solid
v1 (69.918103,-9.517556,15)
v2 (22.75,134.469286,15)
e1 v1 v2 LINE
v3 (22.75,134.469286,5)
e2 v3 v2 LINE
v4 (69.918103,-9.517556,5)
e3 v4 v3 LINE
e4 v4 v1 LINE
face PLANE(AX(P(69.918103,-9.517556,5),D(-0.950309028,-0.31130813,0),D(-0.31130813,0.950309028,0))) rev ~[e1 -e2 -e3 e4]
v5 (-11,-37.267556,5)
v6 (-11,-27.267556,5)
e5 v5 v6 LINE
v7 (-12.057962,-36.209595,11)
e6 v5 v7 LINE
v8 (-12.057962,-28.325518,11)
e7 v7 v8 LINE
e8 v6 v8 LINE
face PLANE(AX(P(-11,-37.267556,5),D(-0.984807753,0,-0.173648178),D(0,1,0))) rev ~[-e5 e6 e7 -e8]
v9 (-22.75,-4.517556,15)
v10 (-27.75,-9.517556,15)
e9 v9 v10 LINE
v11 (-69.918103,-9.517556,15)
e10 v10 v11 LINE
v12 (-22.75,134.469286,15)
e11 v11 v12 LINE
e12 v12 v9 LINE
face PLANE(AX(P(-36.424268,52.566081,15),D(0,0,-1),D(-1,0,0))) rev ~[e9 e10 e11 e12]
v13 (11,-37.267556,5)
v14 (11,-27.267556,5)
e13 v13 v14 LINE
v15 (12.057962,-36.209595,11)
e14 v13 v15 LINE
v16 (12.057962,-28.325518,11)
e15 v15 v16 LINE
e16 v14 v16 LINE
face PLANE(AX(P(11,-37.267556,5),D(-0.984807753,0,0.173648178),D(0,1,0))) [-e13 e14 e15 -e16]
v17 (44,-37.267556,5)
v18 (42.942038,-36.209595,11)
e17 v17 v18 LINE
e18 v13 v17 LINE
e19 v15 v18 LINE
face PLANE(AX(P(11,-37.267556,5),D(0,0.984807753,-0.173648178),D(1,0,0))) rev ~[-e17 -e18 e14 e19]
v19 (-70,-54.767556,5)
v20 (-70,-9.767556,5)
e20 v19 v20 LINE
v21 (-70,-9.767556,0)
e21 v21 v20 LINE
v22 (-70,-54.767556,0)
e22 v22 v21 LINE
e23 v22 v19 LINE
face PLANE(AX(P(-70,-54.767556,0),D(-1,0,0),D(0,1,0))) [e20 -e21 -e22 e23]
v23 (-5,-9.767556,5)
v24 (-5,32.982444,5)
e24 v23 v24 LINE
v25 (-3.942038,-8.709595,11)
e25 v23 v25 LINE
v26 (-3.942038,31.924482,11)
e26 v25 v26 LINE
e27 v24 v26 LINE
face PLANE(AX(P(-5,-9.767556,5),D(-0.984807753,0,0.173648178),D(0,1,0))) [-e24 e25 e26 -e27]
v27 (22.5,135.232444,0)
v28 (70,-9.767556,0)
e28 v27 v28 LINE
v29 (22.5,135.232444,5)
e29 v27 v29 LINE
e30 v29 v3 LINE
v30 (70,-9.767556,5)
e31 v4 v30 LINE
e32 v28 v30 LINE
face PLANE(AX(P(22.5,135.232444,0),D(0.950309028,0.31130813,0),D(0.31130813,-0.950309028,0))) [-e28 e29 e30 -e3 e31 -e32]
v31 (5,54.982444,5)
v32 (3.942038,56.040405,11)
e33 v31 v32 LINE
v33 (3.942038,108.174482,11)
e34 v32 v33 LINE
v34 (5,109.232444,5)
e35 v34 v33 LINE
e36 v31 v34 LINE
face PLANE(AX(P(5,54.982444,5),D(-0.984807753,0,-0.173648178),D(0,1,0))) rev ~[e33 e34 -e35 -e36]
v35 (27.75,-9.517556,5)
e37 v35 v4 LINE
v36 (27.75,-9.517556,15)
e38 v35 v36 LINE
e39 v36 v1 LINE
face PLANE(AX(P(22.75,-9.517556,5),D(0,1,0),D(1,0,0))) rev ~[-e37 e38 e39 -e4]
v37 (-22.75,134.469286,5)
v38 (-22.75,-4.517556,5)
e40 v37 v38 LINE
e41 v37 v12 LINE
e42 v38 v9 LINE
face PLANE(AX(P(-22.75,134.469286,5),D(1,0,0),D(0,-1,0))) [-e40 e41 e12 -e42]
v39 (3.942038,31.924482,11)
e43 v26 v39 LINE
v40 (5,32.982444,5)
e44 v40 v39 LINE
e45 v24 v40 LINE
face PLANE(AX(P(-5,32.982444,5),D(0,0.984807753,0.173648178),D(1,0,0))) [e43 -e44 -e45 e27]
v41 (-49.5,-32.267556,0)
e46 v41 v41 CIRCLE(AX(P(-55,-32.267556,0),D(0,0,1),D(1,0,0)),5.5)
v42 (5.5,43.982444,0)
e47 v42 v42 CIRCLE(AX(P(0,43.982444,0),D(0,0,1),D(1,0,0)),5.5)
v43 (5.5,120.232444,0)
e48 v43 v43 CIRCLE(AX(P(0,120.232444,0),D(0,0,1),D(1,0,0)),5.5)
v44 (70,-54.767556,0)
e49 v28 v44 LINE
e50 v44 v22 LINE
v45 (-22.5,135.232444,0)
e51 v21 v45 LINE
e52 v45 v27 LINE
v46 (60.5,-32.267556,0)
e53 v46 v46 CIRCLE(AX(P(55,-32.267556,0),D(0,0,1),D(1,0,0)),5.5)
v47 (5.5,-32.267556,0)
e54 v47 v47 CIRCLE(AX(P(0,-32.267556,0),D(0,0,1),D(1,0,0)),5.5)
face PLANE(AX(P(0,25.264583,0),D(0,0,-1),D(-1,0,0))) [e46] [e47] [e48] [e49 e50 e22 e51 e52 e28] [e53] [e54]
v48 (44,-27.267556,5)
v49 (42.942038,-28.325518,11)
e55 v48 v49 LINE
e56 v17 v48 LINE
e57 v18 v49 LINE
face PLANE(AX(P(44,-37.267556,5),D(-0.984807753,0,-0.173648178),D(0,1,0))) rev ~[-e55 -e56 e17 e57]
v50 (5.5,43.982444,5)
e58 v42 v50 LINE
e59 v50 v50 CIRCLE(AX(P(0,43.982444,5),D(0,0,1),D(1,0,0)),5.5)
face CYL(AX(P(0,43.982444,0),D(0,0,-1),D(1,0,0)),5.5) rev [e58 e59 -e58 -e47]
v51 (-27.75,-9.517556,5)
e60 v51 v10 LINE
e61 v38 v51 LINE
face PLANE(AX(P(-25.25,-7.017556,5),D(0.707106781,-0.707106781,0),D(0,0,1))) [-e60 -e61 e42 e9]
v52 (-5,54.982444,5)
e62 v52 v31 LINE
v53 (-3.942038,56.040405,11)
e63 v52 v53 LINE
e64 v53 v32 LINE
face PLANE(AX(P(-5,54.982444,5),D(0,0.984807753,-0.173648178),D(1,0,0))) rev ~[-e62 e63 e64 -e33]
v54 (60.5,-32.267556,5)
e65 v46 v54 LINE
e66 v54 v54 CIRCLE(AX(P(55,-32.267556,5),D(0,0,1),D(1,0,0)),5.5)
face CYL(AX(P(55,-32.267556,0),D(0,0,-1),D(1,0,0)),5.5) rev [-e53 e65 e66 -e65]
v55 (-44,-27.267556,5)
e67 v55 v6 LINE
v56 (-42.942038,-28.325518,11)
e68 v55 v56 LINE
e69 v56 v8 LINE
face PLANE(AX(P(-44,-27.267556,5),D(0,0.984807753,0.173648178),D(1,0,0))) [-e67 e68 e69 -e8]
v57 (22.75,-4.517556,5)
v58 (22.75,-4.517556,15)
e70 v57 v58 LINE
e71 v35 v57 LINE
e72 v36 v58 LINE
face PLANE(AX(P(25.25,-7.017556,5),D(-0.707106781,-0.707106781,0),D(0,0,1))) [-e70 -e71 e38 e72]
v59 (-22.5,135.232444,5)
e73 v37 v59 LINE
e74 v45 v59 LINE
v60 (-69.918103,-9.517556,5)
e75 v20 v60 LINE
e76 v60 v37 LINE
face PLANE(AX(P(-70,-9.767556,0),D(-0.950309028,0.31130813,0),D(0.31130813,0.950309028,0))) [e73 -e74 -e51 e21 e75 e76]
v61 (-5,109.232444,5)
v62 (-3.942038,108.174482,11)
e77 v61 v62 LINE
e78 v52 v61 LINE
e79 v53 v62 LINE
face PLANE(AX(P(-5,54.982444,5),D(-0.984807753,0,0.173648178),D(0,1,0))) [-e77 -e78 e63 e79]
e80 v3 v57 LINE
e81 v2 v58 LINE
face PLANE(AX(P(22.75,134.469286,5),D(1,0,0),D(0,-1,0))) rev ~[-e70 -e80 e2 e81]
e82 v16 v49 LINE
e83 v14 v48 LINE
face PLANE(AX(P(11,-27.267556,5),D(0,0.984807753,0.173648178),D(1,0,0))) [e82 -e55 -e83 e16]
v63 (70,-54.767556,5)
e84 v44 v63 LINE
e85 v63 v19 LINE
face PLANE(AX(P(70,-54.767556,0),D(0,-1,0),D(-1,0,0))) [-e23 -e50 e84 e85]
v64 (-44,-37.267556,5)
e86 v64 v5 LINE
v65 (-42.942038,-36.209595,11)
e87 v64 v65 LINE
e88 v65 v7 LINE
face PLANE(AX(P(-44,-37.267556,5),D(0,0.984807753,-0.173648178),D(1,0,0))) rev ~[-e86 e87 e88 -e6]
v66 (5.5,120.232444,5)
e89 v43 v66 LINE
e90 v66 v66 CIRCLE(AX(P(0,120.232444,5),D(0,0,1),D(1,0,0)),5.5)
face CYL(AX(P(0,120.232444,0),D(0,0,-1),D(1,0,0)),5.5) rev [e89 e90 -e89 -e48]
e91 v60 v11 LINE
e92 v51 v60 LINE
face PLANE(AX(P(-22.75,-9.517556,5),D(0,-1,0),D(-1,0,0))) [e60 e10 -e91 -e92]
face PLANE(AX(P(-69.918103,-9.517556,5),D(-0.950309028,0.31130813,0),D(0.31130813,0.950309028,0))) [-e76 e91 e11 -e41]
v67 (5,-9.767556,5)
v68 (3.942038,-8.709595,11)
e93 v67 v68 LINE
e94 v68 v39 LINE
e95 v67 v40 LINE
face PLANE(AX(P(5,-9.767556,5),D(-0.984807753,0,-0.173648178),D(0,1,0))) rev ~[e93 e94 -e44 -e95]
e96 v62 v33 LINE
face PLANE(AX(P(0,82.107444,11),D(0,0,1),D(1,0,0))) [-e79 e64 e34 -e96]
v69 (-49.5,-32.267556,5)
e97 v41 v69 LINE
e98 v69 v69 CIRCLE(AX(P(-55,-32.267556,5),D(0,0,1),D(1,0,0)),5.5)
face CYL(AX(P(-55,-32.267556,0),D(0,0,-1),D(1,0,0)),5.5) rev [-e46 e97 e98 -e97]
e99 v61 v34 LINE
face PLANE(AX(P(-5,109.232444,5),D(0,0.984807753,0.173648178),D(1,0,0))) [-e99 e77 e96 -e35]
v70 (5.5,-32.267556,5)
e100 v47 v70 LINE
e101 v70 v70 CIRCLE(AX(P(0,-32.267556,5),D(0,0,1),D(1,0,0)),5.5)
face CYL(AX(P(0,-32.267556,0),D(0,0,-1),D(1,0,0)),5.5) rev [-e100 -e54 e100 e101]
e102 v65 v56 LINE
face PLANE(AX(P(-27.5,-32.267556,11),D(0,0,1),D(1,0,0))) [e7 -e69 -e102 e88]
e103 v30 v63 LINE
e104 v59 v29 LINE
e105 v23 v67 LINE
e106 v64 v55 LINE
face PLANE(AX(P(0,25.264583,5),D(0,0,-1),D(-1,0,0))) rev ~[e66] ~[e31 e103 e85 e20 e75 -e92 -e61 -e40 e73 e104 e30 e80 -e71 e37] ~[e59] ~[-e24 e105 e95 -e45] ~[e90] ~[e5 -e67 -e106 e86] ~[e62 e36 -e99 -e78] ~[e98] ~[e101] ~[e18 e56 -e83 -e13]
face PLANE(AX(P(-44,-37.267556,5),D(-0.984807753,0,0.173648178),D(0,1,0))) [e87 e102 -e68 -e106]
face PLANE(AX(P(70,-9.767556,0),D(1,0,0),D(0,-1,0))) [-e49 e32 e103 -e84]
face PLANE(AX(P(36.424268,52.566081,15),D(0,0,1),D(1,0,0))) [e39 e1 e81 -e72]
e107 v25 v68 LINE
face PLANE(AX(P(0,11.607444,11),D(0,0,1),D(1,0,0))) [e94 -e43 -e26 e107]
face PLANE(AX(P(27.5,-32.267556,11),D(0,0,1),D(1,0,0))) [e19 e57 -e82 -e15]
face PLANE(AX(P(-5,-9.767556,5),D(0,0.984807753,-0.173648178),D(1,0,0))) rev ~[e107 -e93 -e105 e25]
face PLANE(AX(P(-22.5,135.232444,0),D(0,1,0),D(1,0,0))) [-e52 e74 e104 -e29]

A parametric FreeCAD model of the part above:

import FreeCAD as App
import Part
import Sketcher
from FreeCAD import Vector
Q = App.Units.Quantity


def edges_at(feature, points):
    """Names of the edges that pass closest to the given points."""
    edges = feature.Shape.Edges
    near = lambda p: min(range(len(edges)), key=lambda i: edges[i].distToShape(Part.Vertex(*p))[0])
    return sorted({f"Edge{near(p) + 1}" for p in points})


def faces_at(feature, points):
    """Names of the faces that lie closest to the given points."""
    faces = feature.Shape.Faces
    near = lambda p: min(range(len(faces)), key=lambda i: faces[i].distToShape(Part.Vertex(*p))[0])
    return sorted({f"Face{near(p) + 1}" for p in points})


def add_polygon(sketch, points):
    """Adds a closed chain of lines whose ends are joined by coincident constraints."""
    first, n = sketch.GeometryCount, len(points)
    for a, b in zip(points, points[1:] + points[:1]):
        sketch.addGeometry(Part.LineSegment(App.Vector(*a, 0), App.Vector(*b, 0)), False)
    for i in range(n):
        sketch.addConstraint(Sketcher.Constraint("Coincident", first + i, 2, first + (i + 1) % n, 1))

doc = App.newDocument("Part")
body = doc.addObject("PartDesign::Body", "Body")

# Sketch on XY plane
sketch1 = body.newObject("Sketcher::SketchObject", "Sketch")
sketch1.AttachmentSupport = (doc.getObject("XY_Plane"), [""])
sketch1.MapMode = "FlatFace"
add_polygon(sketch1, [(22, 135), (-22, 135), (-70, -10), (-70, -55), (70, -55), (70, -10)])  # lines 0-5
sketch1.addGeometry(Part.Circle(Vector(55, -32, 0), Vector(0, 0, 1), 6), False)  # 6
sketch1.addGeometry(Part.Circle(Vector(0, -32, 0), Vector(0, 0, 1), 6), False)  # 7
sketch1.addGeometry(Part.Circle(Vector(-55, -32, 0), Vector(0, 0, 1), 6), False)  # 8
sketch1.addGeometry(Part.Circle(Vector(0, 44, 0), Vector(0, 0, 1), 6), False)  # 9
sketch1.addGeometry(Part.Circle(Vector(0, 120, 0), Vector(0, 0, 1), 6), False)  # 10
sketch1.addConstraint([
    Sketcher.Constraint("Horizontal", 0),
    Sketcher.Constraint("Vertical", 2),
    Sketcher.Constraint("Horizontal", 3),
    Sketcher.Constraint("Vertical", 4),
    Sketcher.Constraint("Equal", 6, 7),
    Sketcher.Constraint("Equal", 7, 8),
    Sketcher.Constraint("Equal", 8, 9),
    Sketcher.Constraint("Equal", 9, 10),
    Sketcher.Constraint("Symmetric", 6, 3, 8, 3, -2),
    Sketcher.Constraint("Symmetric", 1, 2, 4, 2, -2),
    Sketcher.Constraint("PointOnObject", 7, 3, -2),
    Sketcher.Constraint("PointOnObject", 9, 3, -2),
    Sketcher.Constraint("PointOnObject", 10, 3, -2),
    Sketcher.Constraint("Horizontal", 6, 3, 7, 3),
    Sketcher.Constraint("Equal", 0, 2),
    Sketcher.Constraint("Equal", 1, 5),
    Sketcher.Constraint("Diameter", 6, Q("11 mm")),
    Sketcher.Constraint("DistanceX", 0, 2, 0, 1, Q("45 mm")),
    Sketcher.Constraint("DistanceX", 3, 1, 3, 2, Q("140 mm")),
    Sketcher.Constraint("DistanceX", -1, 1, 6, 3, Q("55 mm")),
    Sketcher.Constraint("DistanceY", 10, 3, 0, 2, Q("15 mm")),
    Sketcher.Constraint("DistanceY", 1, 2, 10, 3, Q("130 mm")),
    Sketcher.Constraint("DistanceY", 7, 3, 10, 3, Q("152.5 mm")),
    Sketcher.Constraint("DistanceY", 7, 3, 9, 3, Q("76.25 mm")),
    Sketcher.Constraint("DistanceY", 6, 3, -1, 1, Q("32.267556 mm")),
])
pad1 = body.newObject("PartDesign::Pad", "Pad")
pad1.Profile = sketch1
pad1.Length = 5

# Sketch on XY plane
sketch2 = body.newObject("Sketcher::SketchObject", "Sketch001")
sketch2.AttachmentSupport = (doc.getObject("XY_Plane"), [""])
sketch2.MapMode = "FlatFace"
sketch2.AttachmentOffset = App.Placement(Vector(0, 0, 5), App.Rotation())
add_polygon(sketch2, [(-5, 109), (-5, 55), (5, 55), (5, 109)])  # lines 0-3
add_polygon(sketch2, [(-5, 33), (-5, -10), (5, -10), (5, 33)])  # lines 4-7
add_polygon(sketch2, [(-44, -27), (-44, -37), (-11, -37), (-11, -27)])  # lines 8-11
add_polygon(sketch2, [(11, -27), (11, -37), (44, -37), (44, -27)])  # lines 12-15
sketch2.addConstraint([
    Sketcher.Constraint("Vertical", 0),
    Sketcher.Constraint("Horizontal", 1),
    Sketcher.Constraint("Vertical", 2),
    Sketcher.Constraint("Horizontal", 3),
    Sketcher.Constraint("Vertical", 4),
    Sketcher.Constraint("Horizontal", 5),
    Sketcher.Constraint("Vertical", 6),
    Sketcher.Constraint("Horizontal", 7),
    Sketcher.Constraint("Vertical", 8),
    Sketcher.Constraint("Horizontal", 9),
    Sketcher.Constraint("Vertical", 10),
    Sketcher.Constraint("Horizontal", 11),
    Sketcher.Constraint("Vertical", 12),
    Sketcher.Constraint("Horizontal", 13),
    Sketcher.Constraint("Vertical", 14),
    Sketcher.Constraint("Horizontal", 15),
    Sketcher.Constraint("Symmetric", 9, 2, 12, 2, -2),
    Sketcher.Constraint("Symmetric", 11, 2, 14, 2, -2),
    Sketcher.Constraint("Vertical", 3, 2, 4, 2),
    Sketcher.Constraint("Vertical", 2, 2, 5, 2),
    Sketcher.Constraint("Equal", 7, 8),
    Sketcher.Constraint("DistanceX", 1, 1, 1, 2, Q("10 mm")),
    Sketcher.Constraint("DistanceX", 9, 1, 9, 2, Q("33 mm")),
    Sketcher.Constraint("DistanceX", 0, 2, -1, 1, Q("5 mm")),
    Sketcher.Constraint("DistanceX", 8, 2, -1, 1, Q("44 mm")),
    Sketcher.Constraint("DistanceY", 4, 2, 3, 2, Q("119 mm")),
    Sketcher.Constraint("DistanceY", 6, 2, 1, 2, Q("22 mm")),
    Sketcher.Constraint("DistanceY", 0, 2, 0, 1, Q("54.25 mm")),
    Sketcher.Constraint("DistanceY", 8, 2, 4, 2, Q("27.5 mm")),
    Sketcher.Constraint("DistanceY", -1, 1, 0, 2, Q("54.982444 mm")),
])
pad2 = body.newObject("PartDesign::Pad", "Pad001")
pad2.Profile = sketch2
pad2.Length = 6
doc.recompute()

datumplane = body.newObject("PartDesign::Plane", "DatumPlane")
datumplane.AttachmentSupport = (doc.getObject("XY_Plane"), [""])
datumplane.MapMode = "FlatFace"
datumplane.AttachmentOffset = App.Placement(Vector(0, 0, 5), App.Rotation())
draft = body.newObject("PartDesign::Draft", "Draft")
draft.Base = (pad2, faces_at(pad2, [
    (0, 32.982, 8),
    (-27.5, -27.268, 8),
    (27.5, -27.268, 8),
    (0, 109.232, 8),
    (-11, -32.268, 8),
    (44, -32.268, 8),
    (5, 82.107, 8),
    (5, 11.607, 8),
    (-5, 82.107, 8),
    (0, 54.982, 8),
    (-5, 11.607, 8),
    (11, -32.268, 8),
    (27.5, -37.268, 8),
    (0, -9.768, 8),
    (-44, -32.268, 8),
    (-27.5, -37.268, 8),
]))
draft.NeutralPlane = (datumplane, [""])
draft.Angle = 10
draft.Reversed = False

# Sketch on XY plane
sketch3 = body.newObject("Sketcher::SketchObject", "Sketch002")
sketch3.AttachmentSupport = (doc.getObject("XY_Plane"), [""])
sketch3.MapMode = "FlatFace"
sketch3.AttachmentOffset = App.Placement(Vector(0, 0, 5), App.Rotation())
add_polygon(sketch3, [(-23, -10), (-23, 134), (-70, -10)])  # lines 0-2
add_polygon(sketch3, [(23, -10), (70, -10), (23, 134)])  # lines 3-5
sketch3.addConstraint([
    Sketcher.Constraint("Vertical", 0),
    Sketcher.Constraint("Horizontal", 2),
    Sketcher.Constraint("Horizontal", 3),
    Sketcher.Constraint("Vertical", 5),
    Sketcher.Constraint("Symmetric", 1, 2, 3, 2, -2),
    Sketcher.Constraint("Symmetric", 0, 2, 4, 2, -2),
    Sketcher.Constraint("DistanceX", 0, 2, 4, 2, Q("45.5 mm")),
    Sketcher.Constraint("Distance", 1, Q("151.51581 mm")),
    Sketcher.Constraint("DistanceX", 2, 1, 2, 2, Q("47.168103 mm")),
    Sketcher.Constraint("DistanceY", -1, 1, 0, 2, Q("134.469286 mm")),
])
pad3 = body.newObject("PartDesign::Pad", "Pad002")
pad3.Profile = sketch3
pad3.Length = 10
doc.recompute()

chamfer = body.newObject("PartDesign::Chamfer", "Chamfer")
chamfer.Base = (pad3, edges_at(pad3, [(-22.75, -9.518, 10), (22.75, -9.518, 10)]))
chamfer.Size = 5

doc.recompute()
